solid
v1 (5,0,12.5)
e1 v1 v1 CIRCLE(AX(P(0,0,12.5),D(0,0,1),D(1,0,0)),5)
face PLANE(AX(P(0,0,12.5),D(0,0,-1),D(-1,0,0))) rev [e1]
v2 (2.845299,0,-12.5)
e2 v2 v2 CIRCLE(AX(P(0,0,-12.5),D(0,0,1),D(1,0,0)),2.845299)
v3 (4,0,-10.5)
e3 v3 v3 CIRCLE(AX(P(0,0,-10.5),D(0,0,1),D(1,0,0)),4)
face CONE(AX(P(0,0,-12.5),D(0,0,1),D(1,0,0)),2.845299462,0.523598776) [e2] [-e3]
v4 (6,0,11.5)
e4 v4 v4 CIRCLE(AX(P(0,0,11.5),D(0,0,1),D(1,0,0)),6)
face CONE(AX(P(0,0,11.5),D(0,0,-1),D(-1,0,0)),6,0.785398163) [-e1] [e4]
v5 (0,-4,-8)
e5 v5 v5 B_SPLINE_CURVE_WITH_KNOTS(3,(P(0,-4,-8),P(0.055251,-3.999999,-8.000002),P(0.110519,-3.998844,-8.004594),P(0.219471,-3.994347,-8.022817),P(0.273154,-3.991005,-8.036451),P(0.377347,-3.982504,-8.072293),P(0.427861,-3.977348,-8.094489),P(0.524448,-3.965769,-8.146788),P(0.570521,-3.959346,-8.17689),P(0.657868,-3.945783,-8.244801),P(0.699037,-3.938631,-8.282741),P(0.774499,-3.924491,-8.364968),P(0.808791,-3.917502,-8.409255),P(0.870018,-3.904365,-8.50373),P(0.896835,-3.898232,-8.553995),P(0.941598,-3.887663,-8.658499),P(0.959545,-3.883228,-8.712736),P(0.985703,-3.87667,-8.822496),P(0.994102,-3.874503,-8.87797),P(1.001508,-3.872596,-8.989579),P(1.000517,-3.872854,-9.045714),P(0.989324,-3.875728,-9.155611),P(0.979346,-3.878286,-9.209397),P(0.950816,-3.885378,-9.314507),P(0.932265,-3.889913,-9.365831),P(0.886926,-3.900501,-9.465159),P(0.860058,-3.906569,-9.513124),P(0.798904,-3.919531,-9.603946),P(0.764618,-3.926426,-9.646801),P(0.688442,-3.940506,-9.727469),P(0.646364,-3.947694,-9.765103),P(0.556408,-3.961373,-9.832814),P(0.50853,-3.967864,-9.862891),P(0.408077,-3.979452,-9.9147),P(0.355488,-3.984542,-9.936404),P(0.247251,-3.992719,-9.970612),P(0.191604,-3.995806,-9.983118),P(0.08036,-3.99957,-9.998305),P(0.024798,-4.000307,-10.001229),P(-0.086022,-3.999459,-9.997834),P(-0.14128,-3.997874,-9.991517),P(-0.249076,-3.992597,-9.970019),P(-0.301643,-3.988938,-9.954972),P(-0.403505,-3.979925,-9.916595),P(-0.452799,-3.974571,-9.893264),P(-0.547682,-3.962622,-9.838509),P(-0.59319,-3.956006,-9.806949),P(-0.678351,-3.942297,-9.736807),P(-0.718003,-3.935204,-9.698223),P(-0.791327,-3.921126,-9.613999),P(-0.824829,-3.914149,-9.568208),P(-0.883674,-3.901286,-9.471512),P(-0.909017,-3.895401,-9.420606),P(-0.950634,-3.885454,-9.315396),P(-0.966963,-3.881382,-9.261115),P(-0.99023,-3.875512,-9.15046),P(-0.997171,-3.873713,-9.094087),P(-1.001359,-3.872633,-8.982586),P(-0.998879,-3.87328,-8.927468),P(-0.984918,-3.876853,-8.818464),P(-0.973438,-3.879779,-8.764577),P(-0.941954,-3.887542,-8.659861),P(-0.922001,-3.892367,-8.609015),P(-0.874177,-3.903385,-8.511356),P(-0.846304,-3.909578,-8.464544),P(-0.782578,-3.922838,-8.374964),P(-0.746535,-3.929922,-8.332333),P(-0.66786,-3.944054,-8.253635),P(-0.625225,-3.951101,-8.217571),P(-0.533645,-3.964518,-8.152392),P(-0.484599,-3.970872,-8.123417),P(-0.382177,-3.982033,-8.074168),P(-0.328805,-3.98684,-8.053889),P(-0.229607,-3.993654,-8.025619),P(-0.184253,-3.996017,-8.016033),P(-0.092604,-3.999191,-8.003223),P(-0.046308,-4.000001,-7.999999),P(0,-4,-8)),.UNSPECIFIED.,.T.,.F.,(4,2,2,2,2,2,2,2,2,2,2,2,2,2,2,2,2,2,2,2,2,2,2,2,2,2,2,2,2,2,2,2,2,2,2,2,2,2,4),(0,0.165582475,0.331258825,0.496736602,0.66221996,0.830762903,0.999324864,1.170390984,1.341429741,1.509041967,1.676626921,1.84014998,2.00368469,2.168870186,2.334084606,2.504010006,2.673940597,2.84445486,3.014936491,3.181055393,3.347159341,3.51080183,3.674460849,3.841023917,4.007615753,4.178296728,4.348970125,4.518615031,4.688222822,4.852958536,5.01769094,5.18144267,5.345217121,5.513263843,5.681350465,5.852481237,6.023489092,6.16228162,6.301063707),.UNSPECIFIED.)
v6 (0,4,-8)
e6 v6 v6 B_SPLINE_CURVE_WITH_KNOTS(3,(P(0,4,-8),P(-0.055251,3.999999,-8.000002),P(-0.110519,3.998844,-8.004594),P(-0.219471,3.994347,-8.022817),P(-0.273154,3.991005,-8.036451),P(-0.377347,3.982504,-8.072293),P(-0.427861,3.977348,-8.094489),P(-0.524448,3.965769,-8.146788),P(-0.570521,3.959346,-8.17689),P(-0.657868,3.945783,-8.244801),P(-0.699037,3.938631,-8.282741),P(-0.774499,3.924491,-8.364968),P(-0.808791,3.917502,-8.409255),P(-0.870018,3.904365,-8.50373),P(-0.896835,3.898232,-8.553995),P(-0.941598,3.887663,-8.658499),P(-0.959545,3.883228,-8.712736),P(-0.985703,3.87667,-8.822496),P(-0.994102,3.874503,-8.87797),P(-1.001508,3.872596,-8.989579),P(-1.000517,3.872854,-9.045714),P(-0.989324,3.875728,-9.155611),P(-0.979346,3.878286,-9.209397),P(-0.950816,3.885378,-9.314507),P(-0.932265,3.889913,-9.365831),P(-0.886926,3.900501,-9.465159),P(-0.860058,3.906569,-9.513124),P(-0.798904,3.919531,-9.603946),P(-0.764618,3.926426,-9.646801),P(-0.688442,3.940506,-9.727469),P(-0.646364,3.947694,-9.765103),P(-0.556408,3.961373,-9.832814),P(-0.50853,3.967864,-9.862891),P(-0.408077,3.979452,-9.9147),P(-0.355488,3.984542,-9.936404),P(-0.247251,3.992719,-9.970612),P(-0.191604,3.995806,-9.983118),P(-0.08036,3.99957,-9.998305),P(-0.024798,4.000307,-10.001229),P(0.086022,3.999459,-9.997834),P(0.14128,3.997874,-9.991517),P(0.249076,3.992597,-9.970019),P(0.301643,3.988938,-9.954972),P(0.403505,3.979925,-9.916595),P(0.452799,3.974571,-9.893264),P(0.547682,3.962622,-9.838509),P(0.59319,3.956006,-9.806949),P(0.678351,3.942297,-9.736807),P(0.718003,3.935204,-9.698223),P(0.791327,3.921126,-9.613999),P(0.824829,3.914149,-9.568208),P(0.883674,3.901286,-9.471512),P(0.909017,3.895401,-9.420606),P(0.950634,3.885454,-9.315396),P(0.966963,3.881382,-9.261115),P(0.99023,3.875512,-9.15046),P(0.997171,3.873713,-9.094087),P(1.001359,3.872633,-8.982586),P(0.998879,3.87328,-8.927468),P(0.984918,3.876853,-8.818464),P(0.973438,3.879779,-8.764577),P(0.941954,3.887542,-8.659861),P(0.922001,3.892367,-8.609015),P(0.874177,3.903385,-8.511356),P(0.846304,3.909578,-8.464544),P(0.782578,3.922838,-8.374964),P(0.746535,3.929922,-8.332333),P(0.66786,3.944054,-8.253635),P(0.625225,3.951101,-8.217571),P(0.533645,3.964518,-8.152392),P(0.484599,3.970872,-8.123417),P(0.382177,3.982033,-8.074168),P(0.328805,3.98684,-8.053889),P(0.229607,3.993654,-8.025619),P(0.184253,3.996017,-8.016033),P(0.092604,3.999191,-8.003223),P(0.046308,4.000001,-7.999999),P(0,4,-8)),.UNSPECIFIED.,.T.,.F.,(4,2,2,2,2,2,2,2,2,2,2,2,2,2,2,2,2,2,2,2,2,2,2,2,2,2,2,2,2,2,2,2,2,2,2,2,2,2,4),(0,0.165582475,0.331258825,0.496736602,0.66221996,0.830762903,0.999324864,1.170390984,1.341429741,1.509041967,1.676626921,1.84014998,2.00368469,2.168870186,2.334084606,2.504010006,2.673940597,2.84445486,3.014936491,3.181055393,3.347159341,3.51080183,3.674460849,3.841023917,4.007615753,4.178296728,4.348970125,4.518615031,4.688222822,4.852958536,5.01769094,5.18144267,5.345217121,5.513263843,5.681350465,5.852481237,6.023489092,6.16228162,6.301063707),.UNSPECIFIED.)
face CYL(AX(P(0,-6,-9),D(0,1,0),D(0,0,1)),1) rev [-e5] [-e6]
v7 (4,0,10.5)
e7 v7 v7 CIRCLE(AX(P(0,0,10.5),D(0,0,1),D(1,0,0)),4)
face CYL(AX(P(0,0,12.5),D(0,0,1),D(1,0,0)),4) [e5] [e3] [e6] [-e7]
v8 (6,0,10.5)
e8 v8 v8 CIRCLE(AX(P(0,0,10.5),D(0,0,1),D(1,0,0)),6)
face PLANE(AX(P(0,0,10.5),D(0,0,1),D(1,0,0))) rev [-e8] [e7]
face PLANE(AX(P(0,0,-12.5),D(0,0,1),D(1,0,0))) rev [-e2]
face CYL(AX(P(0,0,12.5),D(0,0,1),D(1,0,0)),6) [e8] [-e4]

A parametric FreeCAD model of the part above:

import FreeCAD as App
import Part
import Sketcher
from FreeCAD import Vector
Q = App.Units.Quantity

doc = App.newDocument("Part")
body = doc.addObject("PartDesign::Body", "Body")

# Sketch on XZ plane
sketch1 = body.newObject("Sketcher::SketchObject", "Sketch")
sketch1.AttachmentSupport = (doc.getObject("XZ_Plane"), [""])
sketch1.MapMode = "FlatFace"
sketch1.addGeometry([
    Part.LineSegment(Vector(0, 12.5, 0), Vector(5, 12.5, 0)),  # 0
    Part.LineSegment(Vector(5, 12.5, 0), Vector(6, 11.5, 0)),  # 1
    Part.LineSegment(Vector(6, 11.5, 0), Vector(6, 10.5, 0)),  # 2
    Part.LineSegment(Vector(6, 10.5, 0), Vector(4, 10.5, 0)),  # 3
    Part.LineSegment(Vector(4, 10.5, 0), Vector(4, -10.5, 0)),  # 4
    Part.LineSegment(Vector(4, -10.5, 0), Vector(2.8, -12.5, 0)),  # 5
    Part.LineSegment(Vector(2.8, -12.5, 0), Vector(0, -12.5, 0)),  # 6
    Part.LineSegment(Vector(0, -12.5, 0), Vector(0, 12.5, 0)),  # 7
], False)
sketch1.addConstraint([
    Sketcher.Constraint("Coincident", 0, 2, 1, 1),
    Sketcher.Constraint("Coincident", 1, 2, 2, 1),
    Sketcher.Constraint("Coincident", 2, 2, 3, 1),
    Sketcher.Constraint("Coincident", 3, 2, 4, 1),
    Sketcher.Constraint("Coincident", 4, 2, 5, 1),
    Sketcher.Constraint("Coincident", 5, 2, 6, 1),
    Sketcher.Constraint("Coincident", 6, 2, 7, 1),
    Sketcher.Constraint("Coincident", 7, 2, 0, 1),
    Sketcher.Constraint("Horizontal", 0),
    Sketcher.Constraint("Vertical", 2),
    Sketcher.Constraint("Horizontal", 3),
    Sketcher.Constraint("Vertical", 4),
    Sketcher.Constraint("Horizontal", 6),
    Sketcher.Constraint("Vertical", 7),
    Sketcher.Constraint("Symmetric", 6, 2, 7, 2, -1, 1),
    Sketcher.Constraint("DistanceX", 0, 1, 0, 2, 5.0),
    Sketcher.Constraint("DistanceX", 3, 2, 3, 1, 2.0),
    Sketcher.Constraint("DistanceY", 2, 2, 2, 1, 1.0),
    Sketcher.Constraint("DistanceY", 4, 2, 4, 1, 21.0),
    Sketcher.Constraint("DistanceY", 7, 1, 7, 2, 25.0),
    Sketcher.Constraint("Angle", 1, Q("-45 deg")),
    Sketcher.Constraint("Angle", 5, Q("-120 deg")),
    Sketcher.Constraint("DistanceX", -1, 1, 1, 2, 6.0),
])
revolution = body.newObject("PartDesign::Revolution", "Revolution")
revolution.Profile = sketch1
revolution.ReferenceAxis = (sketch1, ["V_Axis"])
revolution.Angle = 360

# Sketch on XZ plane
sketch2 = body.newObject("Sketcher::SketchObject", "Sketch001")
sketch2.AttachmentSupport = (doc.getObject("XZ_Plane"), [""])
sketch2.MapMode = "FlatFace"
sketch2.addGeometry(Part.Circle(Vector(0, -9, 0), Vector(0, 0, 1), 1), False)
sketch2.addConstraint([
    Sketcher.Constraint("PointOnObject", 0, 3, -2),
    Sketcher.Constraint("Diameter", 0, 2.0),
    Sketcher.Constraint("DistanceY", 0, 3, -1, 1, 9.0),
])
pocket1 = body.newObject("PartDesign::Pocket", "Pocket")
pocket1.Profile = sketch2
pocket1.Type = "ThroughAll"
pocket1.Midplane = True

doc.recompute()
